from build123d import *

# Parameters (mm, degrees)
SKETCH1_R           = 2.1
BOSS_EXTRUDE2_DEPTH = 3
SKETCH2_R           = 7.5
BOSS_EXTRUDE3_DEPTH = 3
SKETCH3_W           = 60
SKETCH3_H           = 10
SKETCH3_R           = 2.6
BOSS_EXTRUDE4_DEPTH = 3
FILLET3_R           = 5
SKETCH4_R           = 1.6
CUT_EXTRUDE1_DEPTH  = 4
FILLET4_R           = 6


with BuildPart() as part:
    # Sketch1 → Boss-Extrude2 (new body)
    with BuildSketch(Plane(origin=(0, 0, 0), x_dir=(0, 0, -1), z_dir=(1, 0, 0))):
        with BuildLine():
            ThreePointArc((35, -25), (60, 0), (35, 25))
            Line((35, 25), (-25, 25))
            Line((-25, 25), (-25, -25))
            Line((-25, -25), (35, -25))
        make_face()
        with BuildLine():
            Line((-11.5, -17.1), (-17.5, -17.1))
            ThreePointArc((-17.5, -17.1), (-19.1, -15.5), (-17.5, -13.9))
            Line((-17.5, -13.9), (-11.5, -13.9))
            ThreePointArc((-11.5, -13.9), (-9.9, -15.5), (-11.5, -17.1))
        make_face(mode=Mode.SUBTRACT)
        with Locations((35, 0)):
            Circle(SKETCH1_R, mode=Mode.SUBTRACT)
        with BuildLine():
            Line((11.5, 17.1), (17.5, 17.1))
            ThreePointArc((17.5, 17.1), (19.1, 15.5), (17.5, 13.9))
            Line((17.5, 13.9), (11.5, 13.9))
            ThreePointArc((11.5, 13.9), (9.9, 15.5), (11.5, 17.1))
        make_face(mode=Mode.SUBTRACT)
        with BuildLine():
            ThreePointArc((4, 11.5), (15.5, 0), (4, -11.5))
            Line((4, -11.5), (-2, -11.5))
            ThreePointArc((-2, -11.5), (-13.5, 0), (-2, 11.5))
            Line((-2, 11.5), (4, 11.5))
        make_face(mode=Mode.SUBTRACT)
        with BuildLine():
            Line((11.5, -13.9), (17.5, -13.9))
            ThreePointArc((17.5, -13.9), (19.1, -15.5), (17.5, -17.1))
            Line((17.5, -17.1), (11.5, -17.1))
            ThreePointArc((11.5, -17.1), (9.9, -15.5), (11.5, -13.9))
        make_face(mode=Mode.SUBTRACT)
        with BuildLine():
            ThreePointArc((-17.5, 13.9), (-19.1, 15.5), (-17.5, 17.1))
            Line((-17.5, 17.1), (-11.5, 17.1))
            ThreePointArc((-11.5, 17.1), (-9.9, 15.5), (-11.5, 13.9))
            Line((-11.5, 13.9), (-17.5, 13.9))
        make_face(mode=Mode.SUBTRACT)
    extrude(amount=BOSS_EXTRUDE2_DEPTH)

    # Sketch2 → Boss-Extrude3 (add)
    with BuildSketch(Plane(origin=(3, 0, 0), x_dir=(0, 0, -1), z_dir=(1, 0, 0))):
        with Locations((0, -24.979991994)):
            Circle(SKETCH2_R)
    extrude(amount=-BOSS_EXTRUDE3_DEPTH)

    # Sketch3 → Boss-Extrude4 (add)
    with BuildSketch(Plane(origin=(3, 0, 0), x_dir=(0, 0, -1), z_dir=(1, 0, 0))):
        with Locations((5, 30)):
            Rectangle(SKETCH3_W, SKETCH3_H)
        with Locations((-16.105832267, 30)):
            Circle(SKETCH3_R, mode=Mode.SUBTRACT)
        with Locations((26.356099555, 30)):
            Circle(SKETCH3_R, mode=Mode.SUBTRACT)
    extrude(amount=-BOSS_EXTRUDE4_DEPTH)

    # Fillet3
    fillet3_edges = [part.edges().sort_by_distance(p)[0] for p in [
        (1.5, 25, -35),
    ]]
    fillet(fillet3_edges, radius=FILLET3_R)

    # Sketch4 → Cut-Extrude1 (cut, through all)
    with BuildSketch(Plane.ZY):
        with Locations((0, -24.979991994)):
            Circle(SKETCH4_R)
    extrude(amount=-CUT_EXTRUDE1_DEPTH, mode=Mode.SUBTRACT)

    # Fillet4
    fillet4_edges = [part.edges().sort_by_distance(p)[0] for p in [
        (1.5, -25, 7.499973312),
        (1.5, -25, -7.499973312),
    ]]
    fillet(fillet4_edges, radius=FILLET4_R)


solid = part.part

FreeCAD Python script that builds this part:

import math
import FreeCAD as App
import Part
import Sketcher


def edges_at(feature, points):
    """Names of the edges that pass closest to the given points."""
    edges = feature.Shape.Edges
    near = lambda p: min(range(len(edges)), key=lambda i: edges[i].distToShape(Part.Vertex(*p))[0])
    return sorted({f"Edge{near(p) + 1}" for p in points})

doc = App.newDocument("Part")
body = doc.addObject("PartDesign::Body", "Body")

sketch1 = body.newObject("Sketcher::SketchObject", "Sketch")
sketch1.AttachmentSupport = (doc.getObject("YZ_Plane"), [""])
sketch1.MapMode = "FlatFace"
sketch1.addGeometry([
    Part.ArcOfCircle(Part.Circle(App.Vector(0, -35, 0), App.Vector(0, 0, 1), 25), math.radians(180), math.radians(360)),
    Part.LineSegment(App.Vector(25, -35, 0), App.Vector(25, 25, 0)),
    Part.LineSegment(App.Vector(25, 25, 0), App.Vector(-25, 25, 0)),
    Part.LineSegment(App.Vector(-25, 25, 0), App.Vector(-25, -35, 0)),
    Part.ArcOfCircle(Part.Circle(App.Vector(-15.5, 11.5, 0), App.Vector(0, 0, 1), 1.6), math.radians(180), math.radians(360)),
    Part.LineSegment(App.Vector(-17.1, 11.5, 0), App.Vector(-17.1, 17.5, 0)),
    Part.ArcOfCircle(Part.Circle(App.Vector(-15.5, 17.5, 0), App.Vector(0, 0, 1), 1.6), math.radians(0), math.radians(180)),
    Part.LineSegment(App.Vector(-13.9, 17.5, 0), App.Vector(-13.9, 11.5, 0)),
    Part.ArcOfCircle(Part.Circle(App.Vector(-15.5, -11.5, 0), App.Vector(0, 0, 1), 1.6), math.radians(0), math.radians(180)),
    Part.LineSegment(App.Vector(-13.9, -11.5, 0), App.Vector(-13.9, -17.5, 0)),
    Part.ArcOfCircle(Part.Circle(App.Vector(-15.5, -17.5, 0), App.Vector(0, 0, 1), 1.6), math.radians(180), math.radians(360)),
    Part.LineSegment(App.Vector(-17.1, -17.5, 0), App.Vector(-17.1, -11.5, 0)),
    Part.LineSegment(App.Vector(11.5, 2, 0), App.Vector(11.5, -4, 0)),
    Part.ArcOfCircle(Part.Circle(App.Vector(0, -4, 0), App.Vector(0, 0, 1), 11.5), math.radians(180), math.radians(360)),
    Part.LineSegment(App.Vector(-11.5, -4, 0), App.Vector(-11.5, 2, 0)),
    Part.ArcOfCircle(Part.Circle(App.Vector(0, 2, 0), App.Vector(0, 0, 1), 11.5), math.radians(0), math.radians(180)),
    Part.LineSegment(App.Vector(13.9, 11.5, 0), App.Vector(13.9, 17.5, 0)),
    Part.ArcOfCircle(Part.Circle(App.Vector(15.5, 17.5, 0), App.Vector(0, 0, 1), 1.6), math.radians(0), math.radians(180)),
    Part.LineSegment(App.Vector(17.1, 17.5, 0), App.Vector(17.1, 11.5, 0)),
    Part.ArcOfCircle(Part.Circle(App.Vector(15.5, 11.5, 0), App.Vector(0, 0, 1), 1.6), math.radians(180), math.radians(360)),
    Part.Circle(App.Vector(0, -35, 0), App.Vector(0, 0, 1), 2.1),
    Part.ArcOfCircle(Part.Circle(App.Vector(15.5, -11.5, 0), App.Vector(0, 0, 1), 1.6), math.radians(0), math.radians(180)),
    Part.LineSegment(App.Vector(17.1, -11.5, 0), App.Vector(17.1, -17.5, 0)),
    Part.ArcOfCircle(Part.Circle(App.Vector(15.5, -17.5, 0), App.Vector(0, 0, 1), 1.6), math.radians(180), math.radians(360)),
    Part.LineSegment(App.Vector(13.9, -17.5, 0), App.Vector(13.9, -11.5, 0)),
], False)
sketch1.addConstraint([
    Sketcher.Constraint("Tangent", 0, 2, 1, 1),
    Sketcher.Constraint("Coincident", 1, 2, 2, 1),
    Sketcher.Constraint("Coincident", 2, 2, 3, 1),
    Sketcher.Constraint("Tangent", 3, 2, 0, 1),
    Sketcher.Constraint("Tangent", 4, 1, 5, 1),
    Sketcher.Constraint("Tangent", 5, 2, 6, 2),
    Sketcher.Constraint("Tangent", 6, 1, 7, 1),
    Sketcher.Constraint("Tangent", 7, 2, 4, 2),
    Sketcher.Constraint("Tangent", 8, 1, 9, 1),
    Sketcher.Constraint("Tangent", 9, 2, 10, 2),
    Sketcher.Constraint("Tangent", 10, 1, 11, 1),
    Sketcher.Constraint("Tangent", 11, 2, 8, 2),
    Sketcher.Constraint("Tangent", 12, 2, 13, 2),
    Sketcher.Constraint("Tangent", 13, 1, 14, 1),
    Sketcher.Constraint("Tangent", 14, 2, 15, 2),
    Sketcher.Constraint("Tangent", 15, 1, 12, 1),
    Sketcher.Constraint("Tangent", 16, 2, 17, 2),
    Sketcher.Constraint("Tangent", 17, 1, 18, 1),
    Sketcher.Constraint("Tangent", 18, 2, 19, 2),
    Sketcher.Constraint("Tangent", 19, 1, 16, 1),
    Sketcher.Constraint("Tangent", 21, 1, 22, 1),
    Sketcher.Constraint("Tangent", 22, 2, 23, 2),
    Sketcher.Constraint("Tangent", 23, 1, 24, 1),
    Sketcher.Constraint("Tangent", 24, 2, 21, 2),
    Sketcher.Constraint("Vertical", 1),
    Sketcher.Constraint("Horizontal", 2),
    Sketcher.Constraint("Vertical", 3),
    Sketcher.Constraint("Vertical", 5),
    Sketcher.Constraint("Vertical", 7),
    Sketcher.Constraint("Vertical", 9),
    Sketcher.Constraint("Vertical", 11),
    Sketcher.Constraint("Vertical", 12),
    Sketcher.Constraint("Vertical", 14),
    Sketcher.Constraint("Vertical", 16),
    Sketcher.Constraint("Vertical", 18),
    Sketcher.Constraint("Vertical", 22),
    Sketcher.Constraint("Vertical", 24),
    Sketcher.Constraint("Coincident", 20, 3, 0, 3),
    Sketcher.Constraint("Equal", 6, 8),
    Sketcher.Constraint("Equal", 10, 17),
    Sketcher.Constraint("Equal", 19, 21),
    Sketcher.Constraint("Symmetric", 10, 3, 17, 3, -1, 1),
    Sketcher.Constraint("Symmetric", 4, 3, 21, 3, -1, 1),
    Sketcher.Constraint("Symmetric", 6, 3, 17, 3, -2),
    Sketcher.Constraint("PointOnObject", 0, 3, -2),
    Sketcher.Constraint("PointOnObject", 13, 3, -2),
    Sketcher.Constraint("Horizontal", 4, 3, 19, 3),
    Sketcher.Constraint("Horizontal", 8, 3, 21, 3),
    Sketcher.Constraint("Horizontal", 10, 3, 23, 3),
    Sketcher.Constraint("Equal", 11, 12),
    Sketcher.Constraint("Radius", 0, 25.0),
    Sketcher.Constraint("Diameter", 20, 4.2),
    Sketcher.Constraint("Radius", 4, 1.6),
    Sketcher.Constraint("Radius", 13, 11.5),
    Sketcher.Constraint("DistanceY", 1, 1, 1, 2, 60.0),
    Sketcher.Constraint("DistanceY", 5, 1, 5, 2, 6.0),
    Sketcher.Constraint("DistanceY", 0, 3, -1, 1, 35.0),
    Sketcher.Constraint("DistanceY", 13, 3, -1, 1, 4.0),
    Sketcher.Constraint("DistanceY", 8, 3, 4, 3, 23.0),
    Sketcher.Constraint("DistanceX", 6, 3, 17, 3, 31.0),
])
pad1 = body.newObject("PartDesign::Pad", "Pad")
pad1.Profile = sketch1
pad1.Length = 3

sketch2 = body.newObject("Sketcher::SketchObject", "Sketch001")
sketch2.AttachmentSupport = (doc.getObject("YZ_Plane"), [""])
sketch2.MapMode = "FlatFace"
sketch2.AttachmentOffset = App.Placement(App.Vector(0, 0, 3), App.Rotation())
sketch2.addGeometry(Part.Circle(App.Vector(-25, 0, 0), App.Vector(0, 0, 1), 8), False)
sketch2.addConstraint([
    Sketcher.Constraint("PointOnObject", 0, 3, -1),
    Sketcher.Constraint("Diameter", 0, 15.0),
    Sketcher.Constraint("DistanceX", 0, 3, -1, 1, 24.979992),
])
pad2 = body.newObject("PartDesign::Pad", "Pad001")
pad2.Profile = sketch2
pad2.Length = 3
pad2.Reversed = True

sketch3 = body.newObject("Sketcher::SketchObject", "Sketch002")
sketch3.AttachmentSupport = (doc.getObject("YZ_Plane"), [""])
sketch3.MapMode = "FlatFace"
sketch3.AttachmentOffset = App.Placement(App.Vector(0, 0, 3), App.Rotation())
sketch3.addGeometry([
    Part.LineSegment(App.Vector(35, 25, 0), App.Vector(25, 25, 0)),
    Part.LineSegment(App.Vector(25, 25, 0), App.Vector(25, -35, 0)),
    Part.LineSegment(App.Vector(25, -35, 0), App.Vector(35, -35, 0)),
    Part.LineSegment(App.Vector(35, -35, 0), App.Vector(35, 25, 0)),
    Part.Circle(App.Vector(30, 16.1, 0), App.Vector(0, 0, 1), 2.6),
    Part.Circle(App.Vector(30, -26.4, 0), App.Vector(0, 0, 1), 2.6),
], False)
sketch3.addConstraint([
    Sketcher.Constraint("Coincident", 0, 2, 1, 1),
    Sketcher.Constraint("Coincident", 1, 2, 2, 1),
    Sketcher.Constraint("Coincident", 2, 2, 3, 1),
    Sketcher.Constraint("Coincident", 3, 2, 0, 1),
    Sketcher.Constraint("Horizontal", 0),
    Sketcher.Constraint("Vertical", 1),
    Sketcher.Constraint("Horizontal", 2),
    Sketcher.Constraint("Vertical", 3),
    Sketcher.Constraint("Equal", 4, 5),
    Sketcher.Constraint("Vertical", 4, 3, 5, 3),
    Sketcher.Constraint("Diameter", 4, 5.2),
    Sketcher.Constraint("DistanceX", 0, 2, 0, 1, 10.0),
    Sketcher.Constraint("DistanceY", 1, 2, 1, 1, 60.0),
    Sketcher.Constraint("DistanceX", -1, 1, 4, 3, 30.0),
    Sketcher.Constraint("DistanceX", -1, 1, 0, 2, 25.0),
    Sketcher.Constraint("DistanceY", -1, 1, 0, 2, 25.0),
    Sketcher.Constraint("DistanceY", 5, 3, -1, 1, 26.3561),
    Sketcher.Constraint("DistanceY", 5, 3, 4, 3, 42.461932),
])
pad3 = body.newObject("PartDesign::Pad", "Pad002")
pad3.Profile = sketch3
pad3.Length = 3
pad3.Reversed = True
doc.recompute()

fillet = body.newObject("PartDesign::Fillet", "Fillet")
fillet.Base = (pad3, edges_at(pad3, [(1.5, 25, -35)]))
fillet.Radius = 5

sketch4 = body.newObject("Sketcher::SketchObject", "Sketch003")
sketch4.AttachmentSupport = (doc.getObject("YZ_Plane"), [""])
sketch4.MapMode = "FlatFace"
sketch4.addGeometry(Part.Circle(App.Vector(-25, 0, 0), App.Vector(0, 0, 1), 1.6), False)
sketch4.addConstraint([
    Sketcher.Constraint("PointOnObject", 0, 3, -1),
    Sketcher.Constraint("Diameter", 0, 3.2),
    Sketcher.Constraint("DistanceX", 0, 3, -1, 1, 24.979992),
])
pocket1 = body.newObject("PartDesign::Pocket", "Pocket")
pocket1.Profile = sketch4
pocket1.Type = "ThroughAll"
pocket1.Reversed = True
doc.recompute()

fillet2 = body.newObject("PartDesign::Fillet", "Fillet001")
fillet2.Base = (pocket1, edges_at(pocket1, [(1.5, -25, 7.5), (1.5, -25, -7.5)]))
fillet2.Radius = 6

doc.recompute()
